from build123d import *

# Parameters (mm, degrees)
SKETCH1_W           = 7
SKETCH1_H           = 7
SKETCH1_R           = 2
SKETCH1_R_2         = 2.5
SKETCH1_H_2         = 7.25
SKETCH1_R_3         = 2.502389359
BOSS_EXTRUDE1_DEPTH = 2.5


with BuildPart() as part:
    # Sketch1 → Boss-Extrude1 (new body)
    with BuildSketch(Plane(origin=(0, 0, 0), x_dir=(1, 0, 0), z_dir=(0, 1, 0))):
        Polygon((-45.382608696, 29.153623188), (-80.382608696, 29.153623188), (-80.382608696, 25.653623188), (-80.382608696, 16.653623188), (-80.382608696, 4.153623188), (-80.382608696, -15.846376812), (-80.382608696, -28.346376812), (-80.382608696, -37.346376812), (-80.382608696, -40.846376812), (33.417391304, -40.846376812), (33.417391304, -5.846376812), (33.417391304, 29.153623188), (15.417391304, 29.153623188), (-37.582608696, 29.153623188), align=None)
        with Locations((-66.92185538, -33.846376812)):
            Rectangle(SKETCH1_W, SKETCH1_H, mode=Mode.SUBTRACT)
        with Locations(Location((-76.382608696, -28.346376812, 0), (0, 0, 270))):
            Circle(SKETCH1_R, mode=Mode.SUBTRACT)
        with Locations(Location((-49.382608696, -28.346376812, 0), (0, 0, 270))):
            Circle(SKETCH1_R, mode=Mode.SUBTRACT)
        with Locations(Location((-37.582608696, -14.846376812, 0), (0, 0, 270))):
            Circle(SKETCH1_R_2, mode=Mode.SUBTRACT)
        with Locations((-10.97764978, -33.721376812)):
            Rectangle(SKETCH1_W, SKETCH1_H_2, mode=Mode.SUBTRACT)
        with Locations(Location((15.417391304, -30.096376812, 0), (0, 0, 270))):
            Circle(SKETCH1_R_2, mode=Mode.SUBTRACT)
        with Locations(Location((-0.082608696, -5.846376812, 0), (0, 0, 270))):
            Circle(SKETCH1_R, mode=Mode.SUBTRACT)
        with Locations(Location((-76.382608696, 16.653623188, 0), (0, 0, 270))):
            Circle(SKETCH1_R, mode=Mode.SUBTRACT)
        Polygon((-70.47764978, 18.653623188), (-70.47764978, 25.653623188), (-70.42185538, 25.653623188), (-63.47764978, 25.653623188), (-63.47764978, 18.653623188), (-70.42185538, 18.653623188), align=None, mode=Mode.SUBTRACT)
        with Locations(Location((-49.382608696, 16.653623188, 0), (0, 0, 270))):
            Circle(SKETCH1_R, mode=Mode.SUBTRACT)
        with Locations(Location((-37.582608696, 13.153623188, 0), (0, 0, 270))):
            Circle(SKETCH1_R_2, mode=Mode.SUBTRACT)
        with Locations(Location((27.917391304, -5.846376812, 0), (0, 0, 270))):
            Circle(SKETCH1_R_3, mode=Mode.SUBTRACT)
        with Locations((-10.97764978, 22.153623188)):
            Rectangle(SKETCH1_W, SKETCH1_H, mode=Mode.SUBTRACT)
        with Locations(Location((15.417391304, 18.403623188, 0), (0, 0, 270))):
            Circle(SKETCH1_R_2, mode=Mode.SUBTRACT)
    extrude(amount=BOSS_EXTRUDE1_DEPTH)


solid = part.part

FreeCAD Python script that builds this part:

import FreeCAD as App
import Part
import Sketcher
from FreeCAD import Vector
Q = App.Units.Quantity

doc = App.newDocument("Part")
body = doc.addObject("PartDesign::Body", "Body")

# Sketch on XZ plane
sketch1 = body.newObject("Sketcher::SketchObject", "Sketch")
sketch1.AttachmentSupport = (doc.getObject("XZ_Plane"), [""])
sketch1.MapMode = "FlatFace"
sketch1.addGeometry([
    Part.LineSegment(Vector(-80.4, -29.2, 0), Vector(-80.4, 40.8, 0)),  # 0
    Part.LineSegment(Vector(-80.4, 40.8, 0), Vector(33.4, 40.8, 0)),  # 1
    Part.LineSegment(Vector(33.4, 40.8, 0), Vector(33.4, -29.2, 0)),  # 2
    Part.LineSegment(Vector(33.4, -29.2, 0), Vector(-80.4, -29.2, 0)),  # 3
    Part.LineSegment(Vector(-63.4, 37.3, 0), Vector(-70.4, 37.3, 0)),  # 4
    Part.LineSegment(Vector(-70.4, 37.3, 0), Vector(-70.4, 30.3, 0)),  # 5
    Part.LineSegment(Vector(-70.4, 30.3, 0), Vector(-63.4, 30.3, 0)),  # 6
    Part.LineSegment(Vector(-63.4, 30.3, 0), Vector(-63.4, 37.3, 0)),  # 7
    Part.Circle(Vector(-76.4, 28.3, 0), Vector(0, 0, 1), 2),  # 8
    Part.Circle(Vector(-49.4, 28.3, 0), Vector(0, 0, 1), 2),  # 9
    Part.Circle(Vector(-37.6, 14.8, 0), Vector(0, 0, 1), 2.5),  # 10
    Part.LineSegment(Vector(-7.5, 37.3, 0), Vector(-14.5, 37.3, 0)),  # 11
    Part.LineSegment(Vector(-14.5, 37.3, 0), Vector(-14.5, 30.1, 0)),  # 12
    Part.LineSegment(Vector(-14.5, 30.1, 0), Vector(-7.5, 30.1, 0)),  # 13
    Part.LineSegment(Vector(-7.5, 30.1, 0), Vector(-7.5, 37.3, 0)),  # 14
    Part.Circle(Vector(15.4, 30.1, 0), Vector(0, 0, 1), 2.5),  # 15
    Part.Circle(Vector(-76.4, -16.7, 0), Vector(0, 0, 1), 2),  # 16
    Part.LineSegment(Vector(-63.5, -18.7, 0), Vector(-70.5, -18.7, 0)),  # 17
    Part.LineSegment(Vector(-70.5, -18.7, 0), Vector(-70.5, -25.7, 0)),  # 18
    Part.LineSegment(Vector(-70.5, -25.7, 0), Vector(-63.5, -25.7, 0)),  # 19
    Part.LineSegment(Vector(-63.5, -25.7, 0), Vector(-63.5, -18.7, 0)),  # 20
    Part.Circle(Vector(-37.6, -13.2, 0), Vector(0, 0, 1), 2.5),  # 21
    Part.Circle(Vector(-49.4, -16.7, 0), Vector(0, 0, 1), 2),  # 22
    Part.Circle(Vector(-0.1, 5.8, 0), Vector(0, 0, 1), 2),  # 23
    Part.Circle(Vector(27.9, 5.8, 0), Vector(0, 0, 1), 2.5),  # 24
    Part.LineSegment(Vector(-7.5, -18.7, 0), Vector(-14.5, -18.7, 0)),  # 25
    Part.LineSegment(Vector(-14.5, -18.7, 0), Vector(-14.5, -25.7, 0)),  # 26
    Part.LineSegment(Vector(-14.5, -25.7, 0), Vector(-7.5, -25.7, 0)),  # 27
    Part.LineSegment(Vector(-7.5, -25.7, 0), Vector(-7.5, -18.7, 0)),  # 28
    Part.Circle(Vector(15.4, -18.4, 0), Vector(0, 0, 1), 2.5),  # 29
], False)
sketch1.addConstraint([
    Sketcher.Constraint("Coincident", 0, 2, 1, 1),
    Sketcher.Constraint("Coincident", 1, 2, 2, 1),
    Sketcher.Constraint("Coincident", 2, 2, 3, 1),
    Sketcher.Constraint("Coincident", 3, 2, 0, 1),
    Sketcher.Constraint("Coincident", 4, 2, 5, 1),
    Sketcher.Constraint("Coincident", 5, 2, 6, 1),
    Sketcher.Constraint("Coincident", 6, 2, 7, 1),
    Sketcher.Constraint("Coincident", 7, 2, 4, 1),
    Sketcher.Constraint("Coincident", 11, 2, 12, 1),
    Sketcher.Constraint("Coincident", 12, 2, 13, 1),
    Sketcher.Constraint("Coincident", 13, 2, 14, 1),
    Sketcher.Constraint("Coincident", 14, 2, 11, 1),
    Sketcher.Constraint("Coincident", 17, 2, 18, 1),
    Sketcher.Constraint("Coincident", 18, 2, 19, 1),
    Sketcher.Constraint("Coincident", 19, 2, 20, 1),
    Sketcher.Constraint("Coincident", 20, 2, 17, 1),
    Sketcher.Constraint("Coincident", 25, 2, 26, 1),
    Sketcher.Constraint("Coincident", 26, 2, 27, 1),
    Sketcher.Constraint("Coincident", 27, 2, 28, 1),
    Sketcher.Constraint("Coincident", 28, 2, 25, 1),
    Sketcher.Constraint("Vertical", 0),
    Sketcher.Constraint("Horizontal", 1),
    Sketcher.Constraint("Vertical", 2),
    Sketcher.Constraint("Horizontal", 3),
    Sketcher.Constraint("Horizontal", 4),
    Sketcher.Constraint("Vertical", 5),
    Sketcher.Constraint("Horizontal", 6),
    Sketcher.Constraint("Vertical", 7),
    Sketcher.Constraint("Horizontal", 11),
    Sketcher.Constraint("Vertical", 12),
    Sketcher.Constraint("Horizontal", 13),
    Sketcher.Constraint("Vertical", 14),
    Sketcher.Constraint("Horizontal", 17),
    Sketcher.Constraint("Vertical", 18),
    Sketcher.Constraint("Horizontal", 19),
    Sketcher.Constraint("Vertical", 20),
    Sketcher.Constraint("Horizontal", 25),
    Sketcher.Constraint("Vertical", 26),
    Sketcher.Constraint("Horizontal", 27),
    Sketcher.Constraint("Vertical", 28),
    Sketcher.Constraint("Equal", 8, 9),
    Sketcher.Constraint("Equal", 10, 15),
    Sketcher.Constraint("Equal", 9, 16),
    Sketcher.Constraint("Equal", 15, 21),
    Sketcher.Constraint("Equal", 16, 22),
    Sketcher.Constraint("Equal", 22, 23),
    Sketcher.Constraint("Equal", 21, 29),
    Sketcher.Constraint("Horizontal", 8, 3, 9, 3),
    Sketcher.Constraint("Horizontal", 16, 3, 22, 3),
    Sketcher.Constraint("Horizontal", 23, 3, 24, 3),
    Sketcher.Constraint("Horizontal", 7, 2, 11, 2),
    Sketcher.Constraint("Horizontal", 15, 3, 12, 2),
    Sketcher.Constraint("Horizontal", 20, 2, 25, 2),
    Sketcher.Constraint("Horizontal", 19, 2, 26, 2),
    Sketcher.Constraint("Vertical", 8, 3, 16, 3),
    Sketcher.Constraint("Vertical", 10, 3, 21, 3),
    Sketcher.Constraint("Vertical", 9, 3, 22, 3),
    Sketcher.Constraint("Vertical", 15, 3, 29, 3),
    Sketcher.Constraint("Vertical", 12, 2, 25, 2),
    Sketcher.Constraint("Vertical", 14, 2, 27, 2),
    Sketcher.Constraint("Equal", 6, 11),
    Sketcher.Constraint("Equal", 13, 17),
    Sketcher.Constraint("Equal", 27, 5),
    Sketcher.Constraint("Equal", 7, 18),
    Sketcher.Constraint("Diameter", 8, Q("4 mm")),
    Sketcher.Constraint("Diameter", 10, Q("5 mm")),
    Sketcher.Constraint("DistanceX", 4, 2, 4, 1, Q("7 mm")),
    Sketcher.Constraint("DistanceY", 0, 1, 0, 2, Q("70 mm")),
    Sketcher.Constraint("DistanceX", 1, 1, 1, 2, Q("113.8 mm")),
    Sketcher.Constraint("DistanceX", 8, 3, 9, 3, Q("27 mm")),
    Sketcher.Constraint("DistanceX", 10, 3, 15, 3, Q("53 mm")),
    Sketcher.Constraint("DistanceY", 16, 3, 8, 3, Q("45 mm")),
    Sketcher.Constraint("DistanceY", 21, 3, 10, 3, Q("28 mm")),
    Sketcher.Constraint("DistanceY", 23, 3, 10, 3, Q("9 mm")),
    Sketcher.Constraint("DistanceX", 23, 3, 24, 3, Q("28 mm")),
    Sketcher.Constraint("DistanceX", 0, 2, 8, 3, Q("4 mm")),
    Sketcher.Constraint("DistanceY", 10, 3, 0, 2, Q("26 mm")),
    Sketcher.Constraint("DistanceX", 15, 3, 1, 2, Q("18 mm")),
    Sketcher.Constraint("DistanceY", 8, 3, 4, 2, Q("9 mm")),
    Sketcher.Constraint("DistanceY", 17, 2, 16, 3, Q("2 mm")),
    Sketcher.Constraint("DistanceY", 12, 2, 12, 1, Q("7.25 mm")),
    Sketcher.Constraint("DistanceY", 10, 3, 9, 3, Q("13.5 mm")),
    Sketcher.Constraint("DistanceX", 23, 3, 15, 3, Q("15.5 mm")),
    Sketcher.Constraint("DistanceY", 29, 3, 15, 3, Q("48.5 mm")),
    Sketcher.Constraint("Diameter", 24, Q("5.004779 mm")),
    Sketcher.Constraint("DistanceX", 8, 3, -1, 1, Q("76.382609 mm")),
    Sketcher.Constraint("DistanceX", 11, 2, -1, 1, Q("14.47765 mm")),
    Sketcher.Constraint("DistanceX", 17, 2, -1, 1, Q("70.47765 mm")),
    Sketcher.Constraint("DistanceY", -1, 1, 8, 3, Q("28.346377 mm")),
    Sketcher.Constraint("DistanceX", 4, 2, -1, 1, Q("70.421855 mm")),
])
pad1 = body.newObject("PartDesign::Pad", "Pad")
pad1.Profile = sketch1
pad1.Length = 2.5
pad1.Reversed = True

doc.recompute()
